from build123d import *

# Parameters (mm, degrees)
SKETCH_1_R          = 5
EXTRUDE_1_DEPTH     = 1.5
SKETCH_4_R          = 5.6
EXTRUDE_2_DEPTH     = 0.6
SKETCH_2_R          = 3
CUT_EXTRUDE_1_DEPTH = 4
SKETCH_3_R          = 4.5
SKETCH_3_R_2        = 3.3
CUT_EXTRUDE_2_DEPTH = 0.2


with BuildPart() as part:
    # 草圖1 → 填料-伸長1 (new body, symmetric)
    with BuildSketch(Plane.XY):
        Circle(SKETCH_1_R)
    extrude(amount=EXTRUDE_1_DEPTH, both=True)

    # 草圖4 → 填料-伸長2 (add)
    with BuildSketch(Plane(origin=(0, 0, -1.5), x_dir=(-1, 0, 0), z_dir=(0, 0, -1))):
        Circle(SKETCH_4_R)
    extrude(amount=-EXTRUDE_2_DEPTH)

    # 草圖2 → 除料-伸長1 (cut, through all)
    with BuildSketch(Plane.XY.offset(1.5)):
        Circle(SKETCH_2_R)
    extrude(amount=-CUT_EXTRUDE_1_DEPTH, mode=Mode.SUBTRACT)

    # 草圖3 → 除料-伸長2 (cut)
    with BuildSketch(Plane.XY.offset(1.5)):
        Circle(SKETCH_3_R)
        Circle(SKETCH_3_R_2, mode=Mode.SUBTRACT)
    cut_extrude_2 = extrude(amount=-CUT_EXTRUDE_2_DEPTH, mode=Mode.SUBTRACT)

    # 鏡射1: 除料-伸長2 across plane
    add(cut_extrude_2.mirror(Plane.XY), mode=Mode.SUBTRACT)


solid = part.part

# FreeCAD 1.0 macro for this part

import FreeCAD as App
import Part
import Sketcher

doc = App.newDocument("Part")
body = doc.addObject("PartDesign::Body", "Body")

sketch1 = body.newObject("Sketcher::SketchObject", "Sketch")
sketch1.AttachmentSupport = (doc.getObject("XY_Plane"), [""])
sketch1.MapMode = "FlatFace"
sketch1.addGeometry(Part.Circle(App.Vector(0, 0, 0), App.Vector(0, 0, 1), 5), False)
sketch1.addConstraint([
    Sketcher.Constraint("Coincident", 0, 3, -1, 1),
    Sketcher.Constraint("Diameter", 0, 10.0),
])
pad1 = body.newObject("PartDesign::Pad", "Pad")
pad1.Profile = sketch1
pad1.Length = 3
pad1.Midplane = True

sketch2 = body.newObject("Sketcher::SketchObject", "Sketch001")
sketch2.AttachmentSupport = (doc.getObject("XY_Plane"), [""])
sketch2.MapMode = "FlatFace"
sketch2.AttachmentOffset = App.Placement(App.Vector(0, 0, -1.5), App.Rotation())
sketch2.addGeometry(Part.Circle(App.Vector(0, 0, 0), App.Vector(0, 0, 1), 5.6), False)
sketch2.addConstraint([
    Sketcher.Constraint("Coincident", 0, 3, -1, 1),
    Sketcher.Constraint("Diameter", 0, 11.2),
])
pad2 = body.newObject("PartDesign::Pad", "Pad001")
pad2.Profile = sketch2
pad2.Length = 0.6

sketch3 = body.newObject("Sketcher::SketchObject", "Sketch002")
sketch3.AttachmentSupport = (doc.getObject("XY_Plane"), [""])
sketch3.MapMode = "FlatFace"
sketch3.AttachmentOffset = App.Placement(App.Vector(0, 0, 1.5), App.Rotation())
sketch3.addGeometry(Part.Circle(App.Vector(0, 0, 0), App.Vector(0, 0, 1), 3), False)
sketch3.addConstraint([
    Sketcher.Constraint("Coincident", 0, 3, -1, 1),
    Sketcher.Constraint("Diameter", 0, 6.0),
])
pocket1 = body.newObject("PartDesign::Pocket", "Pocket")
pocket1.Profile = sketch3
pocket1.Type = "ThroughAll"

sketch4 = body.newObject("Sketcher::SketchObject", "Sketch003")
sketch4.AttachmentSupport = (doc.getObject("XY_Plane"), [""])
sketch4.MapMode = "FlatFace"
sketch4.AttachmentOffset = App.Placement(App.Vector(0, 0, 1.5), App.Rotation())
sketch4.addGeometry([
    Part.Circle(App.Vector(0, 0, 0), App.Vector(0, 0, 1), 4.5),
    Part.Circle(App.Vector(0, 0, 0), App.Vector(0, 0, 1), 3.3),
], False)
sketch4.addConstraint([
    Sketcher.Constraint("Coincident", 0, 3, -1, 1),
    Sketcher.Constraint("Coincident", 1, 3, -1, 1),
    Sketcher.Constraint("Diameter", 0, 9.0),
    Sketcher.Constraint("Diameter", 1, 6.6),
])
pocket2 = body.newObject("PartDesign::Pocket", "Pocket001")
pocket2.Profile = sketch4
pocket2.Length = 0.2
doc.recompute()

mirrored = body.newObject("PartDesign::Mirrored", "Mirrored")
mirrored.Originals = [pocket2]
mirrored.MirrorPlane = (doc.getObject("XY_Plane"), [""])
body.Tip = mirrored

doc.recompute()
